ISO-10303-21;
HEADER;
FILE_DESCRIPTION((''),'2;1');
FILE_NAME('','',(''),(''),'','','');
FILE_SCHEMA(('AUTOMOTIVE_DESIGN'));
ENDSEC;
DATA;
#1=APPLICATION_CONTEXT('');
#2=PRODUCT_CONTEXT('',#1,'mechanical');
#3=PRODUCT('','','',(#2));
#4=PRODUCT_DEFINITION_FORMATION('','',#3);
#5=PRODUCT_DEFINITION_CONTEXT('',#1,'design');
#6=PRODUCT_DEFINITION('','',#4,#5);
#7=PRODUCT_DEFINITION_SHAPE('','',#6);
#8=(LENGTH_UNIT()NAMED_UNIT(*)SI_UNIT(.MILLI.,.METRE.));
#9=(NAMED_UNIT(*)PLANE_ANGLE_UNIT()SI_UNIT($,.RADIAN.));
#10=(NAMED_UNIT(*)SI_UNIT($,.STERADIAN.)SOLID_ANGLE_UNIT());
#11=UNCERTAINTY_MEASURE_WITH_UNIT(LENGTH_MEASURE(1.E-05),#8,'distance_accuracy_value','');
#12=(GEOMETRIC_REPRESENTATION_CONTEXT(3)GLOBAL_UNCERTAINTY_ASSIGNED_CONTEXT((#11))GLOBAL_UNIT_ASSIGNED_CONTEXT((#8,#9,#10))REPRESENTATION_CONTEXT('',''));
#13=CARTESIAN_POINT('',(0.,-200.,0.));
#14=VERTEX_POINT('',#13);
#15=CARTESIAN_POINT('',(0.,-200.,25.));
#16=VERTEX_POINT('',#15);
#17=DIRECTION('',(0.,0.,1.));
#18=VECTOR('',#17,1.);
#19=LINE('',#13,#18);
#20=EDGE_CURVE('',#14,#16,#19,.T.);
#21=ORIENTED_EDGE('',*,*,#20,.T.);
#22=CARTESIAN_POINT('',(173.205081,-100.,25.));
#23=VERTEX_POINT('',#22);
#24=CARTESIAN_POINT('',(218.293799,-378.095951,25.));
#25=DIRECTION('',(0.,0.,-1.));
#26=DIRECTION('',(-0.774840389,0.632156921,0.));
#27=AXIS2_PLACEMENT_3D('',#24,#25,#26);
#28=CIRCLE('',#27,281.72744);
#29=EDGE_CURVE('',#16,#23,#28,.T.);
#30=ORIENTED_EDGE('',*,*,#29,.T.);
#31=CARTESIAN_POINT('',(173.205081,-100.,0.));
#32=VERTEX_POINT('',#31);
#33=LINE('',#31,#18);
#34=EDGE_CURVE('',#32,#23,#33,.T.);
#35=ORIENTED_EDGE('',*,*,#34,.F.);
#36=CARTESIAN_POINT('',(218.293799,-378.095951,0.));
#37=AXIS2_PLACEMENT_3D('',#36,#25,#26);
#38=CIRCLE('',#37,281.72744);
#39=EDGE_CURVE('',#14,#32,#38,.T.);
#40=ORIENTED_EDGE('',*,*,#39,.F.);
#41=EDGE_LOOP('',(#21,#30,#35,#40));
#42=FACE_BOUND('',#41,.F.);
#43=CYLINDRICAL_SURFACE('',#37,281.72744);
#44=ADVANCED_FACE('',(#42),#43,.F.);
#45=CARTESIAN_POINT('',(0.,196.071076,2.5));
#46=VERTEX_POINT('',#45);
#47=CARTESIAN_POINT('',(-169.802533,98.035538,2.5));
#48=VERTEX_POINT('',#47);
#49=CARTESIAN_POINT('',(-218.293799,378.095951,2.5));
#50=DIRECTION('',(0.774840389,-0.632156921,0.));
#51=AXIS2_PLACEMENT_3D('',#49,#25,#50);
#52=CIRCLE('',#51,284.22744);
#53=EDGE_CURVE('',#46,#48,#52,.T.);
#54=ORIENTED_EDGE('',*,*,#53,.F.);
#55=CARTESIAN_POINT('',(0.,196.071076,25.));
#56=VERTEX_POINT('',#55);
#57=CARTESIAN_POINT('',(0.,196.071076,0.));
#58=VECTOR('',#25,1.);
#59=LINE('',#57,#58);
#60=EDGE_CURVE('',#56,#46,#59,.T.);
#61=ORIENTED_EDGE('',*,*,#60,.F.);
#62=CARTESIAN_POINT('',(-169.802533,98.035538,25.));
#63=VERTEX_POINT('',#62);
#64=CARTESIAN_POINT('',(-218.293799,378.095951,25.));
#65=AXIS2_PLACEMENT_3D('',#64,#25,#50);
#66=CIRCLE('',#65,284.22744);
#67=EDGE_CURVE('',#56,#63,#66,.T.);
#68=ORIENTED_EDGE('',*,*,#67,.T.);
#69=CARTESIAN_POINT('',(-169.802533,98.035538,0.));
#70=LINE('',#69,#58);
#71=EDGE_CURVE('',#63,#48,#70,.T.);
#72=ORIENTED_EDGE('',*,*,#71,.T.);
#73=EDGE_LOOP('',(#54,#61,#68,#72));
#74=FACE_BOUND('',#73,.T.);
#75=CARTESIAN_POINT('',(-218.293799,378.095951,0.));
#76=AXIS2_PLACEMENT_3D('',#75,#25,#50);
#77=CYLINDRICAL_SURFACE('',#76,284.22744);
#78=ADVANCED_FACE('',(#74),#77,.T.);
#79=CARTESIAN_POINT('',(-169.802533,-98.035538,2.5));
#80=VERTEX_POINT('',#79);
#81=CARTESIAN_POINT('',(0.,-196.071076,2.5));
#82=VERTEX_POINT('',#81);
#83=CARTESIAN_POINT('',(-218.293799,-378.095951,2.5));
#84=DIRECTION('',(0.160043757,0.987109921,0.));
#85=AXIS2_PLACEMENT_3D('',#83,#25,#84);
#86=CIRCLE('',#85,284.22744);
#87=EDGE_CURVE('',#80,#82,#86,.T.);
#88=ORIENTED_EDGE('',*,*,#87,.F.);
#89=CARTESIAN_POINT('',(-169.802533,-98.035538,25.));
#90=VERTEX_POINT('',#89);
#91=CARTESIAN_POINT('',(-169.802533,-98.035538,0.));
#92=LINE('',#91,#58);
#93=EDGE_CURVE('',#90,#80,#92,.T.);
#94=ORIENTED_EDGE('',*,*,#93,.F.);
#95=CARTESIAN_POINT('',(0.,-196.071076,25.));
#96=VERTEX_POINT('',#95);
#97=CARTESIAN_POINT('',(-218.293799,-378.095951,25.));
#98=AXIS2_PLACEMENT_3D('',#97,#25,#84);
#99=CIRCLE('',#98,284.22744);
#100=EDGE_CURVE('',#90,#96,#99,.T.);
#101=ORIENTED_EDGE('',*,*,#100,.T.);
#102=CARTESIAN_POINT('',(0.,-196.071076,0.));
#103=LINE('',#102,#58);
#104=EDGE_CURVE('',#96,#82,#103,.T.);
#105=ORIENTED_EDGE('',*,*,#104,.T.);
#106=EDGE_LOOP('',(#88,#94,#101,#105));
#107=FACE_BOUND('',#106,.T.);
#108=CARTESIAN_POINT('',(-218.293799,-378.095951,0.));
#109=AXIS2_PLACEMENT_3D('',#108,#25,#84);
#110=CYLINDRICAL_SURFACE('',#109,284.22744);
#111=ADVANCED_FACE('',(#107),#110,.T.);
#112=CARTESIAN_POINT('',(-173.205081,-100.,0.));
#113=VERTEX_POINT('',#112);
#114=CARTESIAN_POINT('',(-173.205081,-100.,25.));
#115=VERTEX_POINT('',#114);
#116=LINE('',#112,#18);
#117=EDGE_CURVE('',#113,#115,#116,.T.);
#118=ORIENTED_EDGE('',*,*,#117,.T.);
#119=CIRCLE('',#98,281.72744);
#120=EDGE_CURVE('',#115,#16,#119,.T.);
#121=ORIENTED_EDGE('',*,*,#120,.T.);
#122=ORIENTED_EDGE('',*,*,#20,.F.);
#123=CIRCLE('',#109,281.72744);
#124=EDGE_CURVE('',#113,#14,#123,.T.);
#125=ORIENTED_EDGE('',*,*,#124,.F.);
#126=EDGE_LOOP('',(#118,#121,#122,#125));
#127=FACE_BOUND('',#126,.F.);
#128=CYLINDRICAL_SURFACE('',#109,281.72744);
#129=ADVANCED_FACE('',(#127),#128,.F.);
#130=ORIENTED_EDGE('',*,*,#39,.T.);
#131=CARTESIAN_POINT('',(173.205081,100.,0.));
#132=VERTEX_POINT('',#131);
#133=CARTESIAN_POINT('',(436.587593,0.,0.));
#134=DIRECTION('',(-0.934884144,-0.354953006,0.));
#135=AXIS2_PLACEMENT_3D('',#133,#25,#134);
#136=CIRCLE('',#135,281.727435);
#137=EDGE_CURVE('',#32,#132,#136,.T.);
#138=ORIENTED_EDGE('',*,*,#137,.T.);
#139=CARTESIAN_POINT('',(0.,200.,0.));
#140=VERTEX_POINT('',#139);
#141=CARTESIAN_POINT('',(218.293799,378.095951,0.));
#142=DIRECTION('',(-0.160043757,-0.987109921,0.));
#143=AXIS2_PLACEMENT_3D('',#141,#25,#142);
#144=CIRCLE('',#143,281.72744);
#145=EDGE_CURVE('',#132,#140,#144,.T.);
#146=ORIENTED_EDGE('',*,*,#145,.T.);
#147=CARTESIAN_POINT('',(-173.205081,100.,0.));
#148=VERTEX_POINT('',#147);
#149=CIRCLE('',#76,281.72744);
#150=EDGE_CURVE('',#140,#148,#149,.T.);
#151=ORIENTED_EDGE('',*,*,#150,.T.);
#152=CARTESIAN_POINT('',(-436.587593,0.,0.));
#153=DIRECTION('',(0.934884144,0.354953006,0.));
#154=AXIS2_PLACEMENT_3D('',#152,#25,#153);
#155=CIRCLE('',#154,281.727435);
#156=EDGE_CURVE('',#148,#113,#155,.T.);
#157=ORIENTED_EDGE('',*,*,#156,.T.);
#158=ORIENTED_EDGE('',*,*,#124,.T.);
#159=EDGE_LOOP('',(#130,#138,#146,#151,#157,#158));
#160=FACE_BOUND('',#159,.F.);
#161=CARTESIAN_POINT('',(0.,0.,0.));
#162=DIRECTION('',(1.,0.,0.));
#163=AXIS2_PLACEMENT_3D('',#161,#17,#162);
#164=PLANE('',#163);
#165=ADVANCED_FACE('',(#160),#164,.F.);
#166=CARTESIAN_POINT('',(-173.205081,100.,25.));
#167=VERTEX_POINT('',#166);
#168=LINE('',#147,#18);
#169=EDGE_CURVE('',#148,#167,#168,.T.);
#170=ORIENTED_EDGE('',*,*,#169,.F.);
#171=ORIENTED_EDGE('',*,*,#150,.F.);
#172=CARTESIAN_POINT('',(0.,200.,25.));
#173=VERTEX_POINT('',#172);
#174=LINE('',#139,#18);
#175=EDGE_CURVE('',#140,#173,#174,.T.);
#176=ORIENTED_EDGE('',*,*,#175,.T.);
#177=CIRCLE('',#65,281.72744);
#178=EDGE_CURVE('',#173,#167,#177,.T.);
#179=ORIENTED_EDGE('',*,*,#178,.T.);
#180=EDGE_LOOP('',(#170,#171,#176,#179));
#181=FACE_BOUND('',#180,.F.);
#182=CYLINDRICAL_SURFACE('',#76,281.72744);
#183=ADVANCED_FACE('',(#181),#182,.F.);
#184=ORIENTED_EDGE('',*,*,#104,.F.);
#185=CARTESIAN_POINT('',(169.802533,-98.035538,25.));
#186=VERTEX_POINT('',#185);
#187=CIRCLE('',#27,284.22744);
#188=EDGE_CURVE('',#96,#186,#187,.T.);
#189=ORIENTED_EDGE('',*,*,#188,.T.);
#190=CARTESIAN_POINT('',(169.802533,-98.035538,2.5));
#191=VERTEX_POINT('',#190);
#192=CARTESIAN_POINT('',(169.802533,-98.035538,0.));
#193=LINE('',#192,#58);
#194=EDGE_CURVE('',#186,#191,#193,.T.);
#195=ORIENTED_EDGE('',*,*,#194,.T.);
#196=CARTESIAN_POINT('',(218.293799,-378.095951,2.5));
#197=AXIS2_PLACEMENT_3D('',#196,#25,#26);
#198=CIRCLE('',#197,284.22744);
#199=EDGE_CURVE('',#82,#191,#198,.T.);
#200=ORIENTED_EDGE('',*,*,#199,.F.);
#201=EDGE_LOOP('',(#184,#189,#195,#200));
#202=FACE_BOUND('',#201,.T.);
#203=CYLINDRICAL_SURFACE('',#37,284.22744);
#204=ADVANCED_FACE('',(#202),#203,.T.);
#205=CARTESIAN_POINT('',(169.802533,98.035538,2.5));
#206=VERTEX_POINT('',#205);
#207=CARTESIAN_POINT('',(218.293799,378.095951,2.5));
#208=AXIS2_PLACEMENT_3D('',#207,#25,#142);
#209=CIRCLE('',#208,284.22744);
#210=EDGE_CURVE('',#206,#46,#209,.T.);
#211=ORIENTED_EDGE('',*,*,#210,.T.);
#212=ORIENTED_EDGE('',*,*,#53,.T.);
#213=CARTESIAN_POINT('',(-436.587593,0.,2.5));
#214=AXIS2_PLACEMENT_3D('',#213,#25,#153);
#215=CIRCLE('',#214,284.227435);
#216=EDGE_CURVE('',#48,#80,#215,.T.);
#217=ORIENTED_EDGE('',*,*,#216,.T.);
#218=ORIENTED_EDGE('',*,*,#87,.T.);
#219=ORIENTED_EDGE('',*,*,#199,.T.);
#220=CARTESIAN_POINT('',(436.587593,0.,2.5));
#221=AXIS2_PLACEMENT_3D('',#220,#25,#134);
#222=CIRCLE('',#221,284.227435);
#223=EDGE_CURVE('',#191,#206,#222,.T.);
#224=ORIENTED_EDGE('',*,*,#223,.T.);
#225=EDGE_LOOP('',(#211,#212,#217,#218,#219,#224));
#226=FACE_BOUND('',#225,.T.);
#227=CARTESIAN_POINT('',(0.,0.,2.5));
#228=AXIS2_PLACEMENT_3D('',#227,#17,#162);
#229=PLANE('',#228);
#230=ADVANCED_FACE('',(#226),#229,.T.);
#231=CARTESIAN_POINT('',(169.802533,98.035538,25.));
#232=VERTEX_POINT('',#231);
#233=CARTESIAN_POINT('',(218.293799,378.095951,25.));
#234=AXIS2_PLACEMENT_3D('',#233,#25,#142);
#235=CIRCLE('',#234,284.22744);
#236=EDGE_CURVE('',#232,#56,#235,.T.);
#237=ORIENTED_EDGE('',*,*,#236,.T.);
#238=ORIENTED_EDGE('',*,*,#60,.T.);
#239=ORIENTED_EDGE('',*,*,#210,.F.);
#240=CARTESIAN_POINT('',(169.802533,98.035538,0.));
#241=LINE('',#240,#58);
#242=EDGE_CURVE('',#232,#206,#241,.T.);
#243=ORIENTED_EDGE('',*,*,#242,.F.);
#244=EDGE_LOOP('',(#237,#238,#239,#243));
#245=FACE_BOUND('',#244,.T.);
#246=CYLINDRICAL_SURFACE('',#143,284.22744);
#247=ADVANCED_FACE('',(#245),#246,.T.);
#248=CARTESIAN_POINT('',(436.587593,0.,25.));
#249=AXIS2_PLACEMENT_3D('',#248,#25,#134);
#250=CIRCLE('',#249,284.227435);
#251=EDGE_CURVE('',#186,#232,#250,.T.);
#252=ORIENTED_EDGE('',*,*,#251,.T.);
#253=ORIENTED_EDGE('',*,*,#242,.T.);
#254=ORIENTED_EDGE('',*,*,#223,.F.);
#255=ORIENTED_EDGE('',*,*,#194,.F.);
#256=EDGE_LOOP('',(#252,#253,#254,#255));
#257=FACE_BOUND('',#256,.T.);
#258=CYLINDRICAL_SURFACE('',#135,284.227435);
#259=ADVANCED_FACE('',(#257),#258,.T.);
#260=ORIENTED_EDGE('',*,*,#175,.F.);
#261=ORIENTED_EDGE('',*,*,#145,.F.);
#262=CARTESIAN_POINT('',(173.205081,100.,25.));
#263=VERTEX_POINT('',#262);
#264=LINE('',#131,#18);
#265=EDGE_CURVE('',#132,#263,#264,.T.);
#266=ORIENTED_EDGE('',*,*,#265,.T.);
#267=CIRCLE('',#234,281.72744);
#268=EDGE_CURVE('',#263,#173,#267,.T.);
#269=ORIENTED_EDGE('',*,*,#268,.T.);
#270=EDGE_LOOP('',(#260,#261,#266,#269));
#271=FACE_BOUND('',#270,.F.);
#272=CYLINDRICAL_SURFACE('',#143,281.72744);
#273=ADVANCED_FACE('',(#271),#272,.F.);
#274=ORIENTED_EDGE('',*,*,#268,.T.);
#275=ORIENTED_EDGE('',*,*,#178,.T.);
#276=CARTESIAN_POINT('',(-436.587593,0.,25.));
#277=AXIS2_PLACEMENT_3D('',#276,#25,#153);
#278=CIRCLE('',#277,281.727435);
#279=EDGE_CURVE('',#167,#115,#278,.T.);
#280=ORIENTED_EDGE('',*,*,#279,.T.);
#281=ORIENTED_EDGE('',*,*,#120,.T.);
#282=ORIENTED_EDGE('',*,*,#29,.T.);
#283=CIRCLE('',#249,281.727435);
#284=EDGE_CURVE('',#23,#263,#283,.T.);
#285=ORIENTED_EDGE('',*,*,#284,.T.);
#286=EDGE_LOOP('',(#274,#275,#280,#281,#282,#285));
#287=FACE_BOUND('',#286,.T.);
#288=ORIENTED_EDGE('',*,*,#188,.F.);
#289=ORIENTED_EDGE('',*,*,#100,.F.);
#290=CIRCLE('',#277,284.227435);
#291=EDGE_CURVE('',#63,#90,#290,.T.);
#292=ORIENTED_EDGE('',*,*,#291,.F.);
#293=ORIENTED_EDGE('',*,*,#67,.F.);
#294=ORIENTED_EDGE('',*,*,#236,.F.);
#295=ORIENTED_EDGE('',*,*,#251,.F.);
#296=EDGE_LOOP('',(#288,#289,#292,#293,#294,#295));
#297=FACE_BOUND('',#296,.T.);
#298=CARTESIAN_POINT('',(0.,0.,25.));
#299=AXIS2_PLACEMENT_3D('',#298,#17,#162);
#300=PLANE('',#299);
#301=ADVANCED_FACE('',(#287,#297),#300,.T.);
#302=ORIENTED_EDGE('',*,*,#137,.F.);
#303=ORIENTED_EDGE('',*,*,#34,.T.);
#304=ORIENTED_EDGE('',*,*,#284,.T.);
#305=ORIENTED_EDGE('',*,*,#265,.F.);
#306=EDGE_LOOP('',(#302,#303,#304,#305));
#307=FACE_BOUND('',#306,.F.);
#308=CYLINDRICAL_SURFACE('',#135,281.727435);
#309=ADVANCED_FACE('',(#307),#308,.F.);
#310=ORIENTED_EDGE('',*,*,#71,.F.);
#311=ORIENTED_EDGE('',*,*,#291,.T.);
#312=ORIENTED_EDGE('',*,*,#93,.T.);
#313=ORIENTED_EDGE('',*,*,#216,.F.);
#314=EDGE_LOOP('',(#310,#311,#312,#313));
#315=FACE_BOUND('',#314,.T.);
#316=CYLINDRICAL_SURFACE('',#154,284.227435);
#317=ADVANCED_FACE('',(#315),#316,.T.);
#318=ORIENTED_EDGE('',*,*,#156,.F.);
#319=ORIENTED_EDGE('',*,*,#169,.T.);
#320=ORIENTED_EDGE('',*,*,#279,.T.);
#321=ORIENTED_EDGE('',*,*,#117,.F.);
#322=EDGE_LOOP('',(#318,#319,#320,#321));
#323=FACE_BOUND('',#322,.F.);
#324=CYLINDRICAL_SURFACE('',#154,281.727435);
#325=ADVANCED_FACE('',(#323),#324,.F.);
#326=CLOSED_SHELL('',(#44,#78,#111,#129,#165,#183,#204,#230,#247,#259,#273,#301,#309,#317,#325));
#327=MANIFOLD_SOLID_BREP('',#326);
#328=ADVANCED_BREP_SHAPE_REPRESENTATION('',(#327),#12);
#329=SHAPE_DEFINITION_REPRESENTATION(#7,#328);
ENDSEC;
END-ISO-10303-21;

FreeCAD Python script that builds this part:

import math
import FreeCAD as App
import Part
import Sketcher
from FreeCAD import Vector


def faces_at(feature, points):
    """Names of the faces that lie closest to the given points."""
    faces = feature.Shape.Faces
    near = lambda p: min(range(len(faces)), key=lambda i: faces[i].distToShape(Part.Vertex(*p))[0])
    return sorted({f"Face{near(p) + 1}" for p in points})

doc = App.newDocument("Part")
params = doc.addObject("Spreadsheet::Sheet", "Params")
for row, (alias, value) in enumerate([
    ("pad1_length", "25 mm"),
    ("thickness_wall", "2.5 mm"),
], start=1):
    params.set(f"A{row}", alias)
    params.set(f"B{row}", "=" + value)
    params.setAlias(f"B{row}", alias)

body = doc.addObject("PartDesign::Body", "Body")

sketch1 = doc.addObject("Sketcher::SketchObject", "Sketch")
body.addObject(sketch1)
sketch1.AttachmentSupport = (doc.XY_Plane, [""])
sketch1.MapMode = "FlatFace"
sketch1.addGeometry([
    Part.ArcOfCircle(Part.Circle(Vector(-437, 0, 0), Vector(0, 0, 1), 282), math.radians(-21), math.radians(21)),
    Part.ArcOfCircle(Part.Circle(Vector(-218, -378, 0), Vector(0, 0, 1), 282), math.radians(39), math.radians(81)),
    Part.ArcOfCircle(Part.Circle(Vector(218, -378, 0), Vector(0, 0, 1), 282), math.radians(99), math.radians(141)),
    Part.ArcOfCircle(Part.Circle(Vector(437, 0, 0), Vector(0, 0, 1), 282), math.radians(159), math.radians(201)),
    Part.ArcOfCircle(Part.Circle(Vector(218, 378, 0), Vector(0, 0, 1), 282), math.radians(-141), math.radians(-99)),
    Part.ArcOfCircle(Part.Circle(Vector(-218, 378, 0), Vector(0, 0, 1), 282), math.radians(-81), math.radians(-39)),
], False)
sketch1.addConstraint([
    Sketcher.Constraint("Coincident", 0, 1, 1, 2),
    Sketcher.Constraint("Coincident", 1, 1, 2, 2),
    Sketcher.Constraint("Coincident", 2, 1, 3, 2),
    Sketcher.Constraint("Coincident", 3, 1, 4, 2),
    Sketcher.Constraint("Coincident", 4, 1, 5, 2),
    Sketcher.Constraint("Coincident", 5, 1, 0, 2),
    Sketcher.Constraint("Equal", 1, 2),
    Sketcher.Constraint("Equal", 0, 3),
    Sketcher.Constraint("Equal", 2, 4),
    Sketcher.Constraint("Equal", 4, 5),
    Sketcher.Constraint("Symmetric", 0, 3, 3, 3, -1, 1),
    Sketcher.Constraint("Symmetric", 1, 3, 4, 3, -1, 1),
    Sketcher.Constraint("Symmetric", 2, 3, 5, 3, -1, 1),
    Sketcher.Constraint("Symmetric", 1, 3, 2, 3, -2),
    Sketcher.Constraint("PointOnObject", 0, 3, -1),
    Sketcher.Constraint("DistanceY", 0, 1, -1, 1, 100.0),
    Sketcher.Constraint("DistanceY", 1, 1, -1, 1, 200.0),
    Sketcher.Constraint("Radius", 1, 281.72744),
    Sketcher.Constraint("Radius", 0, 281.727435),
    Sketcher.Constraint("DistanceX", 1, 3, -1, 1, 218.293799),
])
pad1 = doc.addObject("PartDesign::Pad", "Pad")
body.addObject(pad1)
pad1.Profile = sketch1
pad1.setExpression("Length", "Params.pad1_length")
doc.recompute()

thickness = doc.addObject("PartDesign::Thickness", "Thickness")
body.addObject(thickness)
thickness.Base = (pad1, faces_at(pad1, [(0, 0, 25)]))
thickness.setExpression("Value", "Params.thickness_wall")
thickness.Reversed = True
thickness.Join = "Arc"

doc.recompute()
